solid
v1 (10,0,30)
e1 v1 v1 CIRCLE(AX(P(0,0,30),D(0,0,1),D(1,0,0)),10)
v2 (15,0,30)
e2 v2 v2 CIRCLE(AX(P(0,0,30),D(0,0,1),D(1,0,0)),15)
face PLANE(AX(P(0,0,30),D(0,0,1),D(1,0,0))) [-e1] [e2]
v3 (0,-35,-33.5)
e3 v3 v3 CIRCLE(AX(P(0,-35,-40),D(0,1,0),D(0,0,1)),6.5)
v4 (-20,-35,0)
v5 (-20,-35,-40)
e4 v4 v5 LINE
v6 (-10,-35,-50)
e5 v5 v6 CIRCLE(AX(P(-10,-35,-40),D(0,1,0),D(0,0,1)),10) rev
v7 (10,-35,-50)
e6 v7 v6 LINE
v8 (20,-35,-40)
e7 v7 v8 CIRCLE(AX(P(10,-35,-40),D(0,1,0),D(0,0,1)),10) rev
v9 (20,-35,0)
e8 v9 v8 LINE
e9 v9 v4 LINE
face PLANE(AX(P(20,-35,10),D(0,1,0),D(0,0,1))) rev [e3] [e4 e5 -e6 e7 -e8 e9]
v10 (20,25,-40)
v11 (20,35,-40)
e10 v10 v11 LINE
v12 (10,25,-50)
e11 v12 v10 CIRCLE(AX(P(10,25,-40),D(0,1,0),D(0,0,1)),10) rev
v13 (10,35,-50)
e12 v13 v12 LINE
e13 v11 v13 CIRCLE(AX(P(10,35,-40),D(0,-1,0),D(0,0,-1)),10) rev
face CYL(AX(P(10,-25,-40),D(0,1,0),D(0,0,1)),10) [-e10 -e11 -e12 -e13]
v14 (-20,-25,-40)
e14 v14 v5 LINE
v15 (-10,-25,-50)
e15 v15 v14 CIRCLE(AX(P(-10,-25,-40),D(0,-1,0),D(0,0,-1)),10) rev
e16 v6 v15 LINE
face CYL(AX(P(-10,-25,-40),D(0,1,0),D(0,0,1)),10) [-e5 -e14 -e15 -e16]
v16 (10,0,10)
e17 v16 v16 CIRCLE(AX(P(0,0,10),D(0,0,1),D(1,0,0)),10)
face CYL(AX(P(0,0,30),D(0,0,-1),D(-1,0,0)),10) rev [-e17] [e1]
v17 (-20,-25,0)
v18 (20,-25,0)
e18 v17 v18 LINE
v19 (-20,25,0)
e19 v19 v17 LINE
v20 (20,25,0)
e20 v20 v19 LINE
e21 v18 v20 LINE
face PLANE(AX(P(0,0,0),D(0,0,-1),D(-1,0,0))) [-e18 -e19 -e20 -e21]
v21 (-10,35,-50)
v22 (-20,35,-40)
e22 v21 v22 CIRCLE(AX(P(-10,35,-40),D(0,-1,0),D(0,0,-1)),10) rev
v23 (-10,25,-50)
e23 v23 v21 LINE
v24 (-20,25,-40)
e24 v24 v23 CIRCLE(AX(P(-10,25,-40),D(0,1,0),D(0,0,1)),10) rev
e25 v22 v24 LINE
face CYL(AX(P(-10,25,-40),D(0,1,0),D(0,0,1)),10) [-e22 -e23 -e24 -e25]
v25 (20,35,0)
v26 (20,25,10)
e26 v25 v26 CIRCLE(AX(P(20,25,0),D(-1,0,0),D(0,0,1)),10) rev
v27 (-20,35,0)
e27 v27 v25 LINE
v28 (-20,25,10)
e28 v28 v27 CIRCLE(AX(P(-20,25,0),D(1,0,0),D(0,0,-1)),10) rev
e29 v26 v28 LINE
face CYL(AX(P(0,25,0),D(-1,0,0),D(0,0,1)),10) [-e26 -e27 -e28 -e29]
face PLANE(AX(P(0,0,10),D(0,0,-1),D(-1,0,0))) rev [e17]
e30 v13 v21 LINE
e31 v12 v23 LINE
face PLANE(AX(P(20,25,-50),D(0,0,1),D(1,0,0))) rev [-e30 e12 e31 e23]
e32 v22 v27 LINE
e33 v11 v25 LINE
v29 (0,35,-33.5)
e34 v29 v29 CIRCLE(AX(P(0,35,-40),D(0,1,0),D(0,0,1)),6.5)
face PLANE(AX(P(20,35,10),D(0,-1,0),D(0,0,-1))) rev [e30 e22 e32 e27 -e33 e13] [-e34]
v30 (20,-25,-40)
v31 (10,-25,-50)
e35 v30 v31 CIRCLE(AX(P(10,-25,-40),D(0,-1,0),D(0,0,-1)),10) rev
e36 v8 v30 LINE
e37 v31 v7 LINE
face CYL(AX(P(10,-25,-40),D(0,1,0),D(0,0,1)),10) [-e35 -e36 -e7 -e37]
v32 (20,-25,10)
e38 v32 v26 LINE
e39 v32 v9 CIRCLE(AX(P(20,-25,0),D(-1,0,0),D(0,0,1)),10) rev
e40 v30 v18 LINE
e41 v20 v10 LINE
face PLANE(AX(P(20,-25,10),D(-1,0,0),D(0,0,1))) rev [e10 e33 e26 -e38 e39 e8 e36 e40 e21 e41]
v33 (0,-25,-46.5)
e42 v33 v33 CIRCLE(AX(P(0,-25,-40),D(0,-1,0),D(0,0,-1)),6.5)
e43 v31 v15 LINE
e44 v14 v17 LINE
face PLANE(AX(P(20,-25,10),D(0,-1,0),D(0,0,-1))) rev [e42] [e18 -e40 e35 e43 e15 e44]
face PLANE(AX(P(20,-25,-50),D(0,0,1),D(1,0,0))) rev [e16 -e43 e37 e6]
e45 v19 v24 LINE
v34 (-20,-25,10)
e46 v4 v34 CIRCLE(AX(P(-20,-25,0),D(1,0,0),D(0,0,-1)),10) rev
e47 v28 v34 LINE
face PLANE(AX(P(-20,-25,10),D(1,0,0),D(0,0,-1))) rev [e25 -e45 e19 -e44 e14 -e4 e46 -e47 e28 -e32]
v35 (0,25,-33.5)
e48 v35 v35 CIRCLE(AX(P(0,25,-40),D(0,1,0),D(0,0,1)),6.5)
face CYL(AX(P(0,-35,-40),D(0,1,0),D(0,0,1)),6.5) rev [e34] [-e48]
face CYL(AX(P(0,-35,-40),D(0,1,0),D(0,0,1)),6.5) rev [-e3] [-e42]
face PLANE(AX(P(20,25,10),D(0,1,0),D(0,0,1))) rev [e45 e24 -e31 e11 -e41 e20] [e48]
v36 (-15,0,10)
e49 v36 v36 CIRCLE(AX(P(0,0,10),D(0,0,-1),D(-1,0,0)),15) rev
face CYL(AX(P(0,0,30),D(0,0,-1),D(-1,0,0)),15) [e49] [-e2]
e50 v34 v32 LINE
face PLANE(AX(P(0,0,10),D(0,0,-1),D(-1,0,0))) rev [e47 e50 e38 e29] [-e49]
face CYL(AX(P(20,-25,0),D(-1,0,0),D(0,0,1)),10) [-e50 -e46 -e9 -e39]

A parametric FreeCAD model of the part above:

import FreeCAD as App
import Part
import Sketcher
from FreeCAD import Vector
Q = App.Units.Quantity


def edges_at(feature, points):
    """Names of the edges that pass closest to the given points."""
    edges = feature.Shape.Edges
    near = lambda p: min(range(len(edges)), key=lambda i: edges[i].distToShape(Part.Vertex(*p))[0])
    return sorted({f"Edge{near(p) + 1}" for p in points})


def add_polygon(sketch, points):
    """Adds a closed chain of lines whose ends are joined by coincident constraints."""
    first, n = sketch.GeometryCount, len(points)
    for a, b in zip(points, points[1:] + points[:1]):
        sketch.addGeometry(Part.LineSegment(App.Vector(*a, 0), App.Vector(*b, 0)), False)
    for i in range(n):
        sketch.addConstraint(Sketcher.Constraint("Coincident", first + i, 2, first + (i + 1) % n, 1))

doc = App.newDocument("Part")
body = doc.addObject("PartDesign::Body", "Body")

# Sketch on XY plane
sketch1 = doc.addObject("Sketcher::SketchObject", "Sketch")
body.addObject(sketch1)
sketch1.AttachmentSupport = (doc.XY_Plane, [""])
sketch1.MapMode = "FlatFace"
add_polygon(sketch1, [(-20, 25), (-20, -25), (20, -25), (20, 25)])  # lines 0-3
sketch1.addConstraint(Sketcher.Constraint("Vertical", 0))
sketch1.addConstraint(Sketcher.Constraint("Horizontal", 1))
sketch1.addConstraint(Sketcher.Constraint("Vertical", 2))
sketch1.addConstraint(Sketcher.Constraint("Horizontal", 3))
sketch1.addConstraint(Sketcher.Constraint("Symmetric", 0, 2, 2, 2, -1, 1))
sketch1.addConstraint(Sketcher.Constraint("DistanceX", 1, 1, 1, 2, Q("40 mm")))
sketch1.addConstraint(Sketcher.Constraint("DistanceY", 0, 2, 0, 1, Q("50 mm")))
pad1 = doc.addObject("PartDesign::Pad", "Pad")
body.addObject(pad1)
pad1.Profile = sketch1
pad1.Length = 10

# Sketch on YZ plane
sketch2 = doc.addObject("Sketcher::SketchObject", "Sketch001")
body.addObject(sketch2)
sketch2.AttachmentSupport = (doc.YZ_Plane, [""])
sketch2.MapMode = "FlatFace"
add_polygon(sketch2, [(35, 10), (25, 10), (25, -50), (35, -50)])  # lines 0-3
add_polygon(sketch2, [(-25, 10), (-35, 10), (-35, -50), (-25, -50)])  # lines 4-7
sketch2.addConstraint(Sketcher.Constraint("Horizontal", 0))
sketch2.addConstraint(Sketcher.Constraint("Vertical", 1))
sketch2.addConstraint(Sketcher.Constraint("Horizontal", 2))
sketch2.addConstraint(Sketcher.Constraint("Vertical", 3))
sketch2.addConstraint(Sketcher.Constraint("Horizontal", 4))
sketch2.addConstraint(Sketcher.Constraint("Vertical", 5))
sketch2.addConstraint(Sketcher.Constraint("Horizontal", 6))
sketch2.addConstraint(Sketcher.Constraint("Vertical", 7))
sketch2.addConstraint(Sketcher.Constraint("Symmetric", 3, 2, 4, 2, -2))
sketch2.addConstraint(Sketcher.Constraint("Symmetric", 1, 2, 6, 2, -2))
sketch2.addConstraint(Sketcher.Constraint("DistanceX", 0, 2, 0, 1, Q("10 mm")))
sketch2.addConstraint(Sketcher.Constraint("DistanceY", 1, 2, 1, 1, Q("60 mm")))
sketch2.addConstraint(Sketcher.Constraint("DistanceX", -1, 1, 0, 2, Q("25 mm")))
sketch2.addConstraint(Sketcher.Constraint("DistanceY", -1, 1, 0, 2, Q("10 mm")))
pad2 = doc.addObject("PartDesign::Pad", "Pad001")
body.addObject(pad2)
pad2.Profile = sketch2
pad2.Length = 40
pad2.Midplane = True
doc.recompute()

fillet = doc.addObject("PartDesign::Fillet", "Fillet")
body.addObject(fillet)
fillet.Base = (pad2, edges_at(pad2, [
    (0, 35, 10),
    (-20, 30, -50),
    (20, 30, -50),
    (0, -35, 10),
    (-20, -30, -50),
    (20, -30, -50),
]))
fillet.Radius = 10

# Sketch on XY plane
sketch3 = doc.addObject("Sketcher::SketchObject", "Sketch002")
body.addObject(sketch3)
sketch3.AttachmentSupport = (doc.XY_Plane, [""])
sketch3.MapMode = "FlatFace"
sketch3.AttachmentOffset = App.Placement(Vector(0, 0, 10), App.Rotation())
sketch3.addGeometry(Part.Circle(Vector(0, 0, 0), Vector(0, 0, 1), 15), False)
sketch3.addGeometry(Part.Circle(Vector(0, 0, 0), Vector(0, 0, 1), 10), False)
sketch3.addConstraint(Sketcher.Constraint("Coincident", 0, 3, -1, 1))
sketch3.addConstraint(Sketcher.Constraint("Coincident", 1, 3, -1, 1))
sketch3.addConstraint(Sketcher.Constraint("Diameter", 0, Q("30 mm")))
sketch3.addConstraint(Sketcher.Constraint("Diameter", 1, Q("20 mm")))
pad3 = doc.addObject("PartDesign::Pad", "Pad002")
body.addObject(pad3)
pad3.Profile = sketch3
pad3.Length = 20

# Sketch on XZ plane
sketch4 = doc.addObject("Sketcher::SketchObject", "Sketch003")
body.addObject(sketch4)
sketch4.AttachmentSupport = (doc.XZ_Plane, [""])
sketch4.MapMode = "FlatFace"
sketch4.AttachmentOffset = App.Placement(Vector(0, 0, -35), App.Rotation())
sketch4.addGeometry(Part.Circle(Vector(0, -40, 0), Vector(0, 0, 1), 6), False)
sketch4.addConstraint(Sketcher.Constraint("PointOnObject", 0, 3, -2))
sketch4.addConstraint(Sketcher.Constraint("Diameter", 0, Q("13 mm")))
sketch4.addConstraint(Sketcher.Constraint("DistanceY", 0, 3, -1, 1, Q("40 mm")))
pocket1 = doc.addObject("PartDesign::Pocket", "Pocket")
body.addObject(pocket1)
pocket1.Profile = sketch4
pocket1.Type = "ThroughAll"
pocket1.Reversed = True

doc.recompute()
